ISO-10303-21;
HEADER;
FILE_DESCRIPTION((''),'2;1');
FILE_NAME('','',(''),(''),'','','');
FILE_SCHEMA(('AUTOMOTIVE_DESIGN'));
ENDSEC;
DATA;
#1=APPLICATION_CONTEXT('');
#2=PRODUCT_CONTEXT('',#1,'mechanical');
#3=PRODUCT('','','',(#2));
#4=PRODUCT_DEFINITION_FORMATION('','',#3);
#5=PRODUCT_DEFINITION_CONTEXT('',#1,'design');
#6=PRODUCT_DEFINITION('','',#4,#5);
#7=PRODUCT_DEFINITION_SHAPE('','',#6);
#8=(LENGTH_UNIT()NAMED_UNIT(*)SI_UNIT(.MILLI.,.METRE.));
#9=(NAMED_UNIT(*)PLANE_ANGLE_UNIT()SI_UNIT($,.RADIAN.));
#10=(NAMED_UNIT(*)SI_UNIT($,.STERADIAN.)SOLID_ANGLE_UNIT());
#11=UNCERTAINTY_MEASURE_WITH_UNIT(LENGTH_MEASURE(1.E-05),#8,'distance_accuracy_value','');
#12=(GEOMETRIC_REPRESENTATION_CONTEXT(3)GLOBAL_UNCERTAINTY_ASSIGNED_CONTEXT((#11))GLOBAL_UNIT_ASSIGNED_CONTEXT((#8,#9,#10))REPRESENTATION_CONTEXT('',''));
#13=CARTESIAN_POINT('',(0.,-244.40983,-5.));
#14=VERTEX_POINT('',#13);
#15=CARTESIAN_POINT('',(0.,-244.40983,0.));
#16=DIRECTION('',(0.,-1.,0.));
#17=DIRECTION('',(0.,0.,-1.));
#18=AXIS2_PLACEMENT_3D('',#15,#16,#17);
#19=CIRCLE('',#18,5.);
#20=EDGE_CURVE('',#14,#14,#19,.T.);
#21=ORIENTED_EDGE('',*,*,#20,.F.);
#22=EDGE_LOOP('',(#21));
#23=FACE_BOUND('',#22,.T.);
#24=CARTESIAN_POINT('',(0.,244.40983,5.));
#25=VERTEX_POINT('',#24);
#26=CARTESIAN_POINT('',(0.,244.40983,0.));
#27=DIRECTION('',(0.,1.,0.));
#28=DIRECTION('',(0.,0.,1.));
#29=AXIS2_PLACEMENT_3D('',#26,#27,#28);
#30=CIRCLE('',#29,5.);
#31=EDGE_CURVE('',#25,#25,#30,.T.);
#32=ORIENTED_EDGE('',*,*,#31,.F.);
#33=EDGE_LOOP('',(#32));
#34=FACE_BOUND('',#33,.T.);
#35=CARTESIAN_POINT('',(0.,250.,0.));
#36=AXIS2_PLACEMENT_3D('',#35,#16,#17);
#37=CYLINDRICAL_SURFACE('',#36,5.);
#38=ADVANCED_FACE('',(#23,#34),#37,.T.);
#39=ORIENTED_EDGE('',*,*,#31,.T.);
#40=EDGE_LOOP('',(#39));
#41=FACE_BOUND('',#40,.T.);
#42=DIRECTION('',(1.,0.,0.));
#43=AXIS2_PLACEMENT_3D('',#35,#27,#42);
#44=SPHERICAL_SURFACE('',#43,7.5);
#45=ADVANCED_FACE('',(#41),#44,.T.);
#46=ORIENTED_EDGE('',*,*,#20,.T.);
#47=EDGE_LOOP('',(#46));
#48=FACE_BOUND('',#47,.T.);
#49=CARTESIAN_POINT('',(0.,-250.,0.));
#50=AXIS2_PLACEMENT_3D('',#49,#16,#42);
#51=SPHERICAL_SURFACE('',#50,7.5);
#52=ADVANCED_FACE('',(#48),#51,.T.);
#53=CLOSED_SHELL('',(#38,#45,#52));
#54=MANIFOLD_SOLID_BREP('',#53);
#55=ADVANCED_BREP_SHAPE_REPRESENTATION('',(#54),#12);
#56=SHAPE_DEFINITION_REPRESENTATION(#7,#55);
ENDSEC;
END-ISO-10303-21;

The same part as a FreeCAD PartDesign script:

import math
import FreeCAD as App
import Part
import Sketcher

V = App.Vector

doc = App.newDocument("Part")
params = doc.addObject("Spreadsheet::Sheet", "Params")
for row, (alias, value) in enumerate([
    ("sketch1_diameter", "10 mm"),
    ("pad1_length", "500 mm"),
    ("sketch2_radius", "7.5 mm"),
    ("revolution_angle", "360 deg"),
], start=1):
    params.set(f"A{row}", alias)
    params.set(f"B{row}", "=" + value)
    params.setAlias(f"B{row}", alias)

body = doc.addObject("PartDesign::Body", "Body")

sketch1 = body.newObject("Sketcher::SketchObject", "Sketch")
sketch1.AttachmentSupport = (doc.getObject("XZ_Plane"), [""])
sketch1.MapMode = "FlatFace"
sketch1.addGeometry(Part.Circle(V(0, 0, 0), V(0, 0, 1), 5), False)
sketch1.addConstraint([
    Sketcher.Constraint("Coincident", 0, 3, -1, 1),
    Sketcher.Constraint("Diameter", 0, 10.0),
])
sketch1.setExpression("Constraints[1]", "Params.sketch1_diameter")
pad1 = body.newObject("PartDesign::Pad", "Pad")
pad1.Profile = sketch1
pad1.setExpression("Length", "Params.pad1_length")
pad1.Midplane = True

sketch2 = body.newObject("Sketcher::SketchObject", "Sketch001")
sketch2.AttachmentSupport = (doc.getObject("XY_Plane"), [""])
sketch2.MapMode = "FlatFace"
sketch2.addGeometry([
    Part.LineSegment(V(0, 258, 0), V(0, 242, 0)),
    Part.ArcOfCircle(Part.Circle(V(0, 250, 0), V(0, 0, 1), 8), math.radians(-90), math.radians(90)),
], False)
sketch2.addConstraint([
    Sketcher.Constraint("Coincident", 0, 1, 1, 2),
    Sketcher.Constraint("Coincident", 1, 1, 0, 2),
    Sketcher.Constraint("Vertical", 0),
    Sketcher.Constraint("PointOnObject", 1, 3, -2),
    Sketcher.Constraint("PointOnObject", 0, 1, -2),
    Sketcher.Constraint("Radius", 1, 7.5),
    Sketcher.Constraint("DistanceY", -1, 1, 1, 3, 250.0),
])
sketch2.setExpression("Constraints[5]", "Params.sketch2_radius")
revolution = body.newObject("PartDesign::Revolution", "Revolution")
revolution.Profile = sketch2
revolution.ReferenceAxis = (sketch2, ["V_Axis"])
revolution.setExpression("Angle", "Params.revolution_angle")
doc.recompute()

mirrored = body.newObject("PartDesign::Mirrored", "Mirrored")
mirrored.Originals = [revolution]
mirrored.MirrorPlane = (doc.getObject("XZ_Plane"), [""])
body.Tip = mirrored

doc.recompute()
